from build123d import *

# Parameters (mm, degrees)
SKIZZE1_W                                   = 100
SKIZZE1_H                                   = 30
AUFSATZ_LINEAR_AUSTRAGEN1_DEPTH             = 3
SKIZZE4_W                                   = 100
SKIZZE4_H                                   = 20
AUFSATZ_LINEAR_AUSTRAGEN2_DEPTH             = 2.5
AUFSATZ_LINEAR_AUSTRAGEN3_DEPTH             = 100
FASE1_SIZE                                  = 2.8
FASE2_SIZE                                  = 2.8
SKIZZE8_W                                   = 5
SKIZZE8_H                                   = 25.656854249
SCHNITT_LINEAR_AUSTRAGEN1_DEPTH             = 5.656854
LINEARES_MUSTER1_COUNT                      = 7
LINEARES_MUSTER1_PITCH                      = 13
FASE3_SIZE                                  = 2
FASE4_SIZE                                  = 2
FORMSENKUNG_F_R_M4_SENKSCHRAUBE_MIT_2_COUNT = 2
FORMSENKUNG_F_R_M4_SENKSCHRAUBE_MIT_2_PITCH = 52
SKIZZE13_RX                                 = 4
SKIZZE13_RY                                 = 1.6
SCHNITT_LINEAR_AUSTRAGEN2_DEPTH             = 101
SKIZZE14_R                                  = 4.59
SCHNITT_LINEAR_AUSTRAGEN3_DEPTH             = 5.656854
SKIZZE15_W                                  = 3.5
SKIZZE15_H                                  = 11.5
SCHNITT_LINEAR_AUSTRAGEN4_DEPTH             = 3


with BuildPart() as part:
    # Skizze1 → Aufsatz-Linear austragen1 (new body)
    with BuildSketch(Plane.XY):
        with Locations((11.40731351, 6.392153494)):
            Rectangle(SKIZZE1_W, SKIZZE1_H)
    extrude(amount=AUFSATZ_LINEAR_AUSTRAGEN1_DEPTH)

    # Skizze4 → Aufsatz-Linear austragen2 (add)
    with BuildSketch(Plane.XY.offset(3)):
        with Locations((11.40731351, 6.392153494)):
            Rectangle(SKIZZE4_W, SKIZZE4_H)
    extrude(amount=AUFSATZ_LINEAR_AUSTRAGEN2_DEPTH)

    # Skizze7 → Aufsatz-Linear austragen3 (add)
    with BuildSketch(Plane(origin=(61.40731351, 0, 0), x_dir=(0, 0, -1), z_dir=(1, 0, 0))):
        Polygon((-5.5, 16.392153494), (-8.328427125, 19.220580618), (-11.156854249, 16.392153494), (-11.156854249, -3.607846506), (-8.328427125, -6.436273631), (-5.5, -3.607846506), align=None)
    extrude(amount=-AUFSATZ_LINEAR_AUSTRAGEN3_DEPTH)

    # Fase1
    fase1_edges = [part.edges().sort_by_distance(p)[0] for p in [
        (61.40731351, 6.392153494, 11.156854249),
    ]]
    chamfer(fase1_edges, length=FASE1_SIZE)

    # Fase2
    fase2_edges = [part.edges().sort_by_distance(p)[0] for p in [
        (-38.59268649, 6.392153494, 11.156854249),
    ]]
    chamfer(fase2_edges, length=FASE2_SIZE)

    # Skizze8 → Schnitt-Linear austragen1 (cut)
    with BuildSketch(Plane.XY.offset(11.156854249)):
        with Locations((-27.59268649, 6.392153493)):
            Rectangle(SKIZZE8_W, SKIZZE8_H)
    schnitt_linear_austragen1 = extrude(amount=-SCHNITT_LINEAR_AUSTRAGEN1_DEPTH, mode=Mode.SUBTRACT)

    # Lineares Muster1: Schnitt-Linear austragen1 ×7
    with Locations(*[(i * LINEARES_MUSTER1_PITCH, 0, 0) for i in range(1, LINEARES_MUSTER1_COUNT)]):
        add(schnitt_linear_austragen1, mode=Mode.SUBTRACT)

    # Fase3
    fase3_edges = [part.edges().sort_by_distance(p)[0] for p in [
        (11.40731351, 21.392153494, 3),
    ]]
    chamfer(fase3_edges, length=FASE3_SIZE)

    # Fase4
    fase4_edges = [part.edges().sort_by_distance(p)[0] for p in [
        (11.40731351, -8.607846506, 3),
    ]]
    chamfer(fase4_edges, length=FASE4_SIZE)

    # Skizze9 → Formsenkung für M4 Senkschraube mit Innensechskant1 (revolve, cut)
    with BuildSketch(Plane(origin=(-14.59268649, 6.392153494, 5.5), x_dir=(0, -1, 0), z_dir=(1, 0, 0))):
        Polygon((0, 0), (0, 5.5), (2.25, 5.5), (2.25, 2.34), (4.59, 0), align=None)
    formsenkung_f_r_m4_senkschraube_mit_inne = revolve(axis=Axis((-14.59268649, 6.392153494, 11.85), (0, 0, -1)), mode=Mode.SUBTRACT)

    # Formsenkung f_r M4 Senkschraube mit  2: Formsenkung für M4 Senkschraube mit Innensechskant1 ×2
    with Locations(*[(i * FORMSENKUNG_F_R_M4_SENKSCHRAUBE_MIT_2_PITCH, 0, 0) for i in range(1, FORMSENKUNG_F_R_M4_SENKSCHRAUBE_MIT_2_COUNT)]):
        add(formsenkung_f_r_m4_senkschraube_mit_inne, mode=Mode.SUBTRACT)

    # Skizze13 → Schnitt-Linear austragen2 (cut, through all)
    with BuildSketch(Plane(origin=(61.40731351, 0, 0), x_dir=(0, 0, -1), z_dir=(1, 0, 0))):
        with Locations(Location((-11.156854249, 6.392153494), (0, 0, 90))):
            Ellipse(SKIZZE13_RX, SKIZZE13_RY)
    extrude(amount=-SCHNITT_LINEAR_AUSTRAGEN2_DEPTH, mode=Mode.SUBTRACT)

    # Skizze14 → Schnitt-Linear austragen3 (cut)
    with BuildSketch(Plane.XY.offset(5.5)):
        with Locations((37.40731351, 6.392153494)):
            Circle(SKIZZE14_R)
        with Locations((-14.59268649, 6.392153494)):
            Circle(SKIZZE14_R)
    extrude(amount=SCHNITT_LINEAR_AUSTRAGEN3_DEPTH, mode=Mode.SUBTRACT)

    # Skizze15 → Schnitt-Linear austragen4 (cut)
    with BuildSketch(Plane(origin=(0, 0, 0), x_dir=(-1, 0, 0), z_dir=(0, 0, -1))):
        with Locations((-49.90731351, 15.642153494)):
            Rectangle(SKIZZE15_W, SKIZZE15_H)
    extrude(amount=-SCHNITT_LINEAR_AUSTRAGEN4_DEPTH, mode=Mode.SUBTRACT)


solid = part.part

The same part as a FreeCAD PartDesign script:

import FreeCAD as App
import Part
import Sketcher
from FreeCAD import Vector
Q = App.Units.Quantity


def edges_at(feature, points):
    """Names of the edges that pass closest to the given points."""
    edges = feature.Shape.Edges
    near = lambda p: min(range(len(edges)), key=lambda i: edges[i].distToShape(Part.Vertex(*p))[0])
    return sorted({f"Edge{near(p) + 1}" for p in points})

doc = App.newDocument("Part")
body = doc.addObject("PartDesign::Body", "Body")

sketch1 = doc.addObject("Sketcher::SketchObject", "Sketch")
body.addObject(sketch1)
sketch1.AttachmentSupport = (doc.XY_Plane, [""])
sketch1.MapMode = "FlatFace"
sketch1.addGeometry([
    Part.LineSegment(Vector(-38.592686, 21.392153, 0), Vector(-38.592686, -8.607847, 0)),
    Part.LineSegment(Vector(-38.592686, -8.607847, 0), Vector(61.407314, -8.607847, 0)),
    Part.LineSegment(Vector(61.407314, -8.607847, 0), Vector(61.407314, 21.392153, 0)),
    Part.LineSegment(Vector(61.407314, 21.392153, 0), Vector(-38.592686, 21.392153, 0)),
], False)
sketch1.addConstraint([
    Sketcher.Constraint("Coincident", 0, 2, 1, 1),
    Sketcher.Constraint("Coincident", 1, 2, 2, 1),
    Sketcher.Constraint("Coincident", 2, 2, 3, 1),
    Sketcher.Constraint("Coincident", 3, 2, 0, 1),
    Sketcher.Constraint("Vertical", 0),
    Sketcher.Constraint("Horizontal", 1),
    Sketcher.Constraint("Vertical", 2),
    Sketcher.Constraint("Horizontal", 3),
    Sketcher.Constraint("DistanceX", 1, 1, 1, 2, 100.0),
    Sketcher.Constraint("DistanceY", 0, 2, 0, 1, 30.0),
    Sketcher.Constraint("DistanceX", 0, 2, -1, 1, 38.592686),
    Sketcher.Constraint("DistanceY", 0, 2, -1, 1, 8.607847),
])
pad1 = doc.addObject("PartDesign::Pad", "Pad")
body.addObject(pad1)
pad1.Profile = sketch1
pad1.Length = 3

sketch2 = doc.addObject("Sketcher::SketchObject", "Sketch001")
body.addObject(sketch2)
sketch2.AttachmentSupport = (doc.XY_Plane, [""])
sketch2.MapMode = "FlatFace"
sketch2.AttachmentOffset = App.Placement(Vector(0, 0, 3), App.Rotation())
sketch2.addGeometry([
    Part.LineSegment(Vector(-38.592686, 16.392153, 0), Vector(-38.592686, -3.607847, 0)),
    Part.LineSegment(Vector(-38.592686, -3.607847, 0), Vector(61.407314, -3.607847, 0)),
    Part.LineSegment(Vector(61.407314, -3.607847, 0), Vector(61.407314, 16.392153, 0)),
    Part.LineSegment(Vector(61.407314, 16.392153, 0), Vector(-38.592686, 16.392153, 0)),
], False)
sketch2.addConstraint([
    Sketcher.Constraint("Coincident", 0, 2, 1, 1),
    Sketcher.Constraint("Coincident", 1, 2, 2, 1),
    Sketcher.Constraint("Coincident", 2, 2, 3, 1),
    Sketcher.Constraint("Coincident", 3, 2, 0, 1),
    Sketcher.Constraint("Vertical", 0),
    Sketcher.Constraint("Horizontal", 1),
    Sketcher.Constraint("Vertical", 2),
    Sketcher.Constraint("Horizontal", 3),
    Sketcher.Constraint("DistanceX", 1, 1, 1, 2, 100.0),
    Sketcher.Constraint("DistanceY", 0, 2, 0, 1, 20.0),
    Sketcher.Constraint("DistanceX", 0, 2, -1, 1, 38.592686),
    Sketcher.Constraint("DistanceY", 0, 2, -1, 1, 3.607847),
])
pad2 = doc.addObject("PartDesign::Pad", "Pad001")
body.addObject(pad2)
pad2.Profile = sketch2
pad2.Length = 2.5

sketch3 = doc.addObject("Sketcher::SketchObject", "Sketch002")
body.addObject(sketch3)
sketch3.AttachmentSupport = (doc.YZ_Plane, [""])
sketch3.MapMode = "FlatFace"
sketch3.AttachmentOffset = App.Placement(Vector(0, 0, 61.407314), App.Rotation())
sketch3.addGeometry([
    Part.LineSegment(Vector(16.392153, 5.5, 0), Vector(19.220581, 8.328427, 0)),
    Part.LineSegment(Vector(19.220581, 8.328427, 0), Vector(16.392153, 11.156854, 0)),
    Part.LineSegment(Vector(16.392153, 11.156854, 0), Vector(-3.607847, 11.156854, 0)),
    Part.LineSegment(Vector(-3.607847, 11.156854, 0), Vector(-6.436274, 8.328427, 0)),
    Part.LineSegment(Vector(-6.436274, 8.328427, 0), Vector(-3.607847, 5.5, 0)),
    Part.LineSegment(Vector(-3.607847, 5.5, 0), Vector(16.392153, 5.5, 0)),
], False)
sketch3.addConstraint([
    Sketcher.Constraint("Coincident", 0, 2, 1, 1),
    Sketcher.Constraint("Coincident", 1, 2, 2, 1),
    Sketcher.Constraint("Coincident", 2, 2, 3, 1),
    Sketcher.Constraint("Coincident", 3, 2, 4, 1),
    Sketcher.Constraint("Coincident", 4, 2, 5, 1),
    Sketcher.Constraint("Coincident", 5, 2, 0, 1),
    Sketcher.Constraint("Horizontal", 2),
    Sketcher.Constraint("Horizontal", 5),
    Sketcher.Constraint("Perpendicular", 0, 1),
    Sketcher.Constraint("Perpendicular", 1, 3),
    Sketcher.Constraint("Perpendicular", 3, 4),
    Sketcher.Constraint("Horizontal", 0, 2, 3, 2),
    Sketcher.Constraint("Vertical", 2, 2, 4, 2),
    Sketcher.Constraint("Vertical", 1, 2, 5, 2),
    Sketcher.Constraint("DistanceX", 2, 2, 2, 1, 20.0),
    Sketcher.Constraint("Distance", 0, 4.0),
    Sketcher.Constraint("DistanceY", -1, 1, 4, 2, 5.5),
    Sketcher.Constraint("DistanceX", -1, 1, 0, 2, 19.220581),
])
pad3 = doc.addObject("PartDesign::Pad", "Pad002")
body.addObject(pad3)
pad3.Profile = sketch3
pad3.Length = 100
pad3.Reversed = True
doc.recompute()

chamfer = doc.addObject("PartDesign::Chamfer", "Chamfer")
body.addObject(chamfer)
chamfer.Base = (pad3, edges_at(pad3, [(61.407, 6.392, 11.157)]))
chamfer.Size = 2.8
doc.recompute()

chamfer2 = doc.addObject("PartDesign::Chamfer", "Chamfer001")
body.addObject(chamfer2)
chamfer2.Base = (chamfer, edges_at(chamfer, [(-38.593, 6.392, 11.157)]))
chamfer2.Size = 2.8

sketch4 = doc.addObject("Sketcher::SketchObject", "Sketch003")
body.addObject(sketch4)
sketch4.AttachmentSupport = (doc.XY_Plane, [""])
sketch4.MapMode = "FlatFace"
sketch4.AttachmentOffset = App.Placement(Vector(0, 0, 11.156854), App.Rotation())
sketch4.addGeometry([
    Part.LineSegment(Vector(-30.092686, 19.220581, 0), Vector(-30.092686, -6.436274, 0)),
    Part.LineSegment(Vector(-30.092686, -6.436274, 0), Vector(-25.092686, -6.436274, 0)),
    Part.LineSegment(Vector(-25.092686, -6.436274, 0), Vector(-25.092686, 19.220581, 0)),
    Part.LineSegment(Vector(-25.092686, 19.220581, 0), Vector(-30.092686, 19.220581, 0)),
], False)
sketch4.addConstraint([
    Sketcher.Constraint("Coincident", 0, 2, 1, 1),
    Sketcher.Constraint("Coincident", 1, 2, 2, 1),
    Sketcher.Constraint("Coincident", 2, 2, 3, 1),
    Sketcher.Constraint("Coincident", 3, 2, 0, 1),
    Sketcher.Constraint("Vertical", 0),
    Sketcher.Constraint("Horizontal", 1),
    Sketcher.Constraint("Vertical", 2),
    Sketcher.Constraint("Horizontal", 3),
    Sketcher.Constraint("DistanceX", 1, 1, 1, 2, 5.0),
    Sketcher.Constraint("DistanceY", 0, 2, 0, 1, 25.656854),
    Sketcher.Constraint("DistanceY", -1, 1, 2, 2, 19.220581),
    Sketcher.Constraint("DistanceX", 0, 2, -1, 1, 30.092686),
])
pocket1 = doc.addObject("PartDesign::Pocket", "Pocket")
body.addObject(pocket1)
pocket1.Profile = sketch4
pocket1.Length = 5.656854
doc.recompute()

linearpattern = doc.addObject("PartDesign::LinearPattern", "LinearPattern")
body.addObject(linearpattern)
linearpattern.Originals = [pocket1]
linearpattern.Direction = (doc.X_Axis, [""])
linearpattern.Mode = "offset"
linearpattern.Offset = 13
linearpattern.Occurrences = 7
body.Tip = linearpattern
doc.recompute()

chamfer3 = doc.addObject("PartDesign::Chamfer", "Chamfer002")
body.addObject(chamfer3)
chamfer3.Base = (linearpattern, edges_at(linearpattern, [(11.407, 21.392, 3)]))
chamfer3.Size = 2
doc.recompute()

chamfer4 = doc.addObject("PartDesign::Chamfer", "Chamfer003")
body.addObject(chamfer4)
chamfer4.Base = (chamfer3, edges_at(chamfer3, [(11.407, -8.608, 3)]))
chamfer4.Size = 2

sketch5 = doc.addObject("Sketcher::SketchObject", "Sketch004")
body.addObject(sketch5)
sketch5.AttachmentSupport = (doc.YZ_Plane, [""])
sketch5.MapMode = "FlatFace"
sketch5.AttachmentOffset = App.Placement(Vector(0, 0, -14.592686), App.Rotation())
sketch5.addGeometry([
    Part.LineSegment(Vector(6.392153, 0, 0), Vector(6.392153, 5.5, 0)),
    Part.LineSegment(Vector(6.392153, 5.5, 0), Vector(1.802153, 5.5, 0)),
    Part.LineSegment(Vector(1.802153, 5.5, 0), Vector(4.142153, 3.16, 0)),
    Part.LineSegment(Vector(4.142153, 3.16, 0), Vector(4.142153, 0, 0)),
    Part.LineSegment(Vector(4.142153, 0, 0), Vector(6.392153, 0, 0)),
], False)
sketch5.addGeometry(Part.LineSegment(Vector(6.392153, 5.5, 0), Vector(6.392153, 0, 0)), True)
sketch5.addConstraint([
    Sketcher.Constraint("Coincident", 0, 2, 1, 1),
    Sketcher.Constraint("Coincident", 1, 2, 2, 1),
    Sketcher.Constraint("Coincident", 2, 2, 3, 1),
    Sketcher.Constraint("Coincident", 3, 2, 4, 1),
    Sketcher.Constraint("Coincident", 4, 2, 0, 1),
    Sketcher.Constraint("Vertical", 0),
    Sketcher.Constraint("Horizontal", 1),
    Sketcher.Constraint("Vertical", 3),
    Sketcher.Constraint("Horizontal", 4),
    Sketcher.Constraint("Vertical", 5),
    Sketcher.Constraint("Coincident", 5, 1, 0, 2),
    Sketcher.Constraint("PointOnObject", 3, 2, -1),
    Sketcher.Constraint("PointOnObject", 5, 2, -1),
    Sketcher.Constraint("Angle", 2, Q("-45 deg")),
    Sketcher.Constraint("DistanceY", 0, 1, 0, 2, 5.5),
    Sketcher.Constraint("DistanceX", 1, 2, 1, 1, 4.59),
    Sketcher.Constraint("DistanceX", 4, 1, 4, 2, 2.25),
    Sketcher.Constraint("DistanceX", -1, 1, 0, 2, 6.392153),
])
groove = doc.addObject("PartDesign::Groove", "Groove")
body.addObject(groove)
groove.Profile = sketch5
groove.ReferenceAxis = (sketch5, ["Axis0"])
groove.Angle = 360
doc.recompute()

linearpattern2 = doc.addObject("PartDesign::LinearPattern", "LinearPattern001")
body.addObject(linearpattern2)
linearpattern2.Originals = [groove]
linearpattern2.Direction = (doc.X_Axis, [""])
linearpattern2.Mode = "offset"
linearpattern2.Offset = 52
linearpattern2.Occurrences = 2
body.Tip = linearpattern2

sketch6 = doc.addObject("Sketcher::SketchObject", "Sketch005")
body.addObject(sketch6)
sketch6.AttachmentSupport = (doc.YZ_Plane, [""])
sketch6.MapMode = "FlatFace"
sketch6.AttachmentOffset = App.Placement(Vector(0, 0, 61.407314), App.Rotation())
sketch6.addGeometry(Part.Ellipse(Vector(10.392153, 11.156854, 0), Vector(6.392153, 12.756854, 0), Vector(6.392153, 11.156854, 0)), False)
sketch6.addConstraint(Sketcher.Constraint("Block", 0))
pocket2 = doc.addObject("PartDesign::Pocket", "Pocket001")
body.addObject(pocket2)
pocket2.Profile = sketch6
pocket2.Type = "ThroughAll"

sketch7 = doc.addObject("Sketcher::SketchObject", "Sketch006")
body.addObject(sketch7)
sketch7.AttachmentSupport = (doc.XY_Plane, [""])
sketch7.MapMode = "FlatFace"
sketch7.AttachmentOffset = App.Placement(Vector(0, 0, 5.5), App.Rotation())
sketch7.addGeometry([
    Part.Circle(Vector(37.407314, 6.392153, 0), Vector(0, 0, 1), 4.59),
    Part.Circle(Vector(-14.592686, 6.392153, 0), Vector(0, 0, 1), 4.59),
], False)
sketch7.addConstraint([
    Sketcher.Constraint("Equal", 0, 1),
    Sketcher.Constraint("Horizontal", 0, 3, 1, 3),
    Sketcher.Constraint("Diameter", 0, 9.18),
    Sketcher.Constraint("DistanceX", 1, 3, 0, 3, 52.0),
    Sketcher.Constraint("DistanceX", -1, 1, 0, 3, 37.407314),
    Sketcher.Constraint("DistanceY", -1, 1, 0, 3, 6.392153),
])
pocket3 = doc.addObject("PartDesign::Pocket", "Pocket002")
body.addObject(pocket3)
pocket3.Profile = sketch7
pocket3.Length = 5.656854
pocket3.Reversed = True

sketch8 = doc.addObject("Sketcher::SketchObject", "Sketch007")
body.addObject(sketch8)
sketch8.AttachmentSupport = (doc.XY_Plane, [""])
sketch8.MapMode = "FlatFace"
sketch8.addGeometry([
    Part.LineSegment(Vector(51.657314, 21.392153, 0), Vector(51.657314, 9.892153, 0)),
    Part.LineSegment(Vector(51.657314, 9.892153, 0), Vector(48.157314, 9.892153, 0)),
    Part.LineSegment(Vector(48.157314, 9.892153, 0), Vector(48.157314, 21.392153, 0)),
    Part.LineSegment(Vector(48.157314, 21.392153, 0), Vector(51.657314, 21.392153, 0)),
], False)
sketch8.addConstraint([
    Sketcher.Constraint("Coincident", 0, 2, 1, 1),
    Sketcher.Constraint("Coincident", 1, 2, 2, 1),
    Sketcher.Constraint("Coincident", 2, 2, 3, 1),
    Sketcher.Constraint("Coincident", 3, 2, 0, 1),
    Sketcher.Constraint("Vertical", 0),
    Sketcher.Constraint("Horizontal", 1),
    Sketcher.Constraint("Vertical", 2),
    Sketcher.Constraint("Horizontal", 3),
    Sketcher.Constraint("DistanceX", 1, 2, 1, 1, 3.5),
    Sketcher.Constraint("DistanceY", 0, 2, 0, 1, 11.5),
    Sketcher.Constraint("DistanceX", -1, 1, 0, 2, 51.657314),
    Sketcher.Constraint("DistanceY", -1, 1, 0, 2, 9.892153),
])
pocket4 = doc.addObject("PartDesign::Pocket", "Pocket003")
body.addObject(pocket4)
pocket4.Profile = sketch8
pocket4.Length = 3
pocket4.Reversed = True

doc.recompute()
